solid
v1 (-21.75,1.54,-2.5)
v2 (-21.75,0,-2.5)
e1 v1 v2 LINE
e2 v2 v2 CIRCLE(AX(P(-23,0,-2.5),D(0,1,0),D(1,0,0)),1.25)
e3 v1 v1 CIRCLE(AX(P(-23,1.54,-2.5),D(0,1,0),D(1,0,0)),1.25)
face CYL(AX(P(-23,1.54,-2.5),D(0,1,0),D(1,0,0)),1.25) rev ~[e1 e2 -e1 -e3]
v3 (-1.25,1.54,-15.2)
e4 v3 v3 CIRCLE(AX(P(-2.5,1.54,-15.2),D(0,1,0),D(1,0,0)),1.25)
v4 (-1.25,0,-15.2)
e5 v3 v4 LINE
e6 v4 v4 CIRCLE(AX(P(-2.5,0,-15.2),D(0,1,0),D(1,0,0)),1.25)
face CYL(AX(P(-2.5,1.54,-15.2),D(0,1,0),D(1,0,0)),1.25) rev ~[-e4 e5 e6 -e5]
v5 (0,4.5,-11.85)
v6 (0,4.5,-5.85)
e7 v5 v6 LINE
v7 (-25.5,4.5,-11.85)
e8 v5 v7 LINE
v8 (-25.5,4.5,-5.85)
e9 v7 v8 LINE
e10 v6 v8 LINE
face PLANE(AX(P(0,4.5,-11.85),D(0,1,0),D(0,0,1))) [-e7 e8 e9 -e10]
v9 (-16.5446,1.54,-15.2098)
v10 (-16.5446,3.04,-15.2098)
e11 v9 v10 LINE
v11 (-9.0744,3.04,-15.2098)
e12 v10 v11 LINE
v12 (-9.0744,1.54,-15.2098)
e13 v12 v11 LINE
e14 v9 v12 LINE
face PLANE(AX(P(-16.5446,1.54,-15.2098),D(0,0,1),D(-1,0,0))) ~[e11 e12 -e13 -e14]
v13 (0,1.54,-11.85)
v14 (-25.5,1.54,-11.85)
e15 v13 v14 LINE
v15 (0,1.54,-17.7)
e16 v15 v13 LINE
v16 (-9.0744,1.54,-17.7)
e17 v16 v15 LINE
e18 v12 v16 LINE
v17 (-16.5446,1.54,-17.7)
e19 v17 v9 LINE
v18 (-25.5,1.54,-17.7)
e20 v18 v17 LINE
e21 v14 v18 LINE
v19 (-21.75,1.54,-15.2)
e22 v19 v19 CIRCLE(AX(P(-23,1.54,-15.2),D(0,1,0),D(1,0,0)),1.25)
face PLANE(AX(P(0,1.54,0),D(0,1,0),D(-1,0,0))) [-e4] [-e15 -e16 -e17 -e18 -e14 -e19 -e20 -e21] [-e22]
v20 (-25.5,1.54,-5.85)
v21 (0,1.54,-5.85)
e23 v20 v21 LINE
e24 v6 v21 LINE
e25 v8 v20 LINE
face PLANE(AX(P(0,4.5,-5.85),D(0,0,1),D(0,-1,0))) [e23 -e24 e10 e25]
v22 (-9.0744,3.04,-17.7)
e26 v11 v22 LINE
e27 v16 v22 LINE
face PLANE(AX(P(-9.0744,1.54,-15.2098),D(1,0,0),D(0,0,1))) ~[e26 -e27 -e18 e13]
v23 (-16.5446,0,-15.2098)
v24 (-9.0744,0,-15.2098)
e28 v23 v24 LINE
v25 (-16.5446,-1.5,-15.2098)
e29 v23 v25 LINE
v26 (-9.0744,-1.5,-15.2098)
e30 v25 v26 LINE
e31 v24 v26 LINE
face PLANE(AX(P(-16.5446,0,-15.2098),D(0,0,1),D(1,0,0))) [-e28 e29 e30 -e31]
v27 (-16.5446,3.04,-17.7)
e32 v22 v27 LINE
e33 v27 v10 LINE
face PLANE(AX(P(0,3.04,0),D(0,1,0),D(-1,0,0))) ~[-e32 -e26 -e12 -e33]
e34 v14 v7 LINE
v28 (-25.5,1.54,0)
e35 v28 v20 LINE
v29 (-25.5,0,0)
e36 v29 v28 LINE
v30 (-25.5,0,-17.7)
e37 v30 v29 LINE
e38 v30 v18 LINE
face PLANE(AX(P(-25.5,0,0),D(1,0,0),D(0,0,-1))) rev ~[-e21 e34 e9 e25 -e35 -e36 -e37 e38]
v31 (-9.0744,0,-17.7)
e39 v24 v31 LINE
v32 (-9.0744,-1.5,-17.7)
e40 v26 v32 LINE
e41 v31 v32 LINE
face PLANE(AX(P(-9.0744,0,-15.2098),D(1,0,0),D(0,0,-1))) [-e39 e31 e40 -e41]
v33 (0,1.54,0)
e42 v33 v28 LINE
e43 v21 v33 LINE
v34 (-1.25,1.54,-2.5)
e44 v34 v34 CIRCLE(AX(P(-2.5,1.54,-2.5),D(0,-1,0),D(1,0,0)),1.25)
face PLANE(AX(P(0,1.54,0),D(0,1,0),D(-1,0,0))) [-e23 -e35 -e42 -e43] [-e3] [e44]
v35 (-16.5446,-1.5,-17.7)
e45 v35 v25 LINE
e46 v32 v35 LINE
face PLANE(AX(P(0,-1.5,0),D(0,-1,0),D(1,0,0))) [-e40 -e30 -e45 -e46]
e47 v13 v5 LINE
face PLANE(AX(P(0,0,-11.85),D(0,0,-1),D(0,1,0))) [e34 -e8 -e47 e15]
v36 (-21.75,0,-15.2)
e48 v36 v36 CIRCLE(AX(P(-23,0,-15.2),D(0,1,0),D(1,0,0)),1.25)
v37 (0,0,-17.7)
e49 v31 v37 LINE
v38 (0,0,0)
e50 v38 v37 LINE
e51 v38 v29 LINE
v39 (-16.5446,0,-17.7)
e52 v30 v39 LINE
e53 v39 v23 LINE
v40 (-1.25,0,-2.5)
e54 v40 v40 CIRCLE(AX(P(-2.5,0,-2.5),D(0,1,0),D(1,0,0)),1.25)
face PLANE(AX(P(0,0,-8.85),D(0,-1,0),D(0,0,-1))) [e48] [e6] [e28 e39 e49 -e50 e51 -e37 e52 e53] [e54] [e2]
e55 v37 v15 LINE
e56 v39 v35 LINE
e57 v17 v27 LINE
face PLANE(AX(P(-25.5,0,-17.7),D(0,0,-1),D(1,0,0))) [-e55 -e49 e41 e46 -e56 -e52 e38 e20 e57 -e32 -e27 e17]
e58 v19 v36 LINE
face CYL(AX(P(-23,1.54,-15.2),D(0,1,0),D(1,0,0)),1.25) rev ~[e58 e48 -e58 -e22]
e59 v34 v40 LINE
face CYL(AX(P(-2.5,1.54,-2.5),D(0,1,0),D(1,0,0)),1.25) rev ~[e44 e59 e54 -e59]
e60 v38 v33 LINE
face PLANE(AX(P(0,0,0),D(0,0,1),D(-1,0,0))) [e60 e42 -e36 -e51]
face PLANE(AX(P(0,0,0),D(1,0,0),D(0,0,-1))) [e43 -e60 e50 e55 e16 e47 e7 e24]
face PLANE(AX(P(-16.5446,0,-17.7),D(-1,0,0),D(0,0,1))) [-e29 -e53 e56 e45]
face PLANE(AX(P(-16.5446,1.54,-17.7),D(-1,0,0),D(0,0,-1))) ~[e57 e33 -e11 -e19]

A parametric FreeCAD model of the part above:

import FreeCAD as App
import Part
import Sketcher
from FreeCAD import Vector
Q = App.Units.Quantity

doc = App.newDocument("Part")
params = doc.addObject("Spreadsheet::Sheet", "Params")
for row, (alias, value) in enumerate([
    ("sketch1_width", "25.5 mm"),
    ("sketch1_height", "17.7 mm"),
    ("pad1_length", "1.54 mm"),
    ("sketch2_diameter", "2.5 mm"),
    ("pocket1_length", "1.54 mm"),
    ("sketch3_height", "6 mm"),
    ("sketch3_width", "4.5 mm"),
    ("pad2_length", "25.5 mm"),
    ("pad3_length", "1.5 mm"),
], start=1):
    params.set(f"A{row}", alias)
    params.set(f"B{row}", "=" + value)
    params.setAlias(f"B{row}", alias)

body = doc.addObject("PartDesign::Body", "Body")

# Sketch on XZ plane
sketch1 = doc.addObject("Sketcher::SketchObject", "Sketch")
body.addObject(sketch1)
sketch1.AttachmentSupport = (doc.XZ_Plane, [""])
sketch1.MapMode = "FlatFace"
sketch1.addGeometry(Part.LineSegment(Vector(-25.5, 0, 0), Vector(0, 0, 0)), False)
sketch1.addGeometry(Part.LineSegment(Vector(0, 0, 0), Vector(0, -17.7, 0)), False)
sketch1.addGeometry(Part.LineSegment(Vector(0, -17.7, 0), Vector(-25.5, -17.7, 0)), False)
sketch1.addGeometry(Part.LineSegment(Vector(-25.5, -17.7, 0), Vector(-25.5, 0, 0)), False)
sketch1.addConstraint(Sketcher.Constraint("Coincident", 0, 2, 1, 1))
sketch1.addConstraint(Sketcher.Constraint("Coincident", 1, 2, 2, 1))
sketch1.addConstraint(Sketcher.Constraint("Coincident", 2, 2, 3, 1))
sketch1.addConstraint(Sketcher.Constraint("Coincident", 3, 2, 0, 1))
sketch1.addConstraint(Sketcher.Constraint("Horizontal", 0))
sketch1.addConstraint(Sketcher.Constraint("Vertical", 1))
sketch1.addConstraint(Sketcher.Constraint("Horizontal", 2))
sketch1.addConstraint(Sketcher.Constraint("Vertical", 3))
sketch1.addConstraint(Sketcher.Constraint("Coincident", 0, 2, -1, 1))
sketch1.addConstraint(Sketcher.Constraint("DistanceX", 0, 1, 0, 2, Q("25.5 mm")))
sketch1.addConstraint(Sketcher.Constraint("DistanceY", 1, 2, 1, 1, Q("17.7 mm")))
sketch1.setExpression("Constraints[9]", "Params.sketch1_width")
sketch1.setExpression("Constraints[10]", "Params.sketch1_height")
pad1 = doc.addObject("PartDesign::Pad", "Pad")
body.addObject(pad1)
pad1.Profile = sketch1
pad1.setExpression("Length", "Params.pad1_length")
pad1.Reversed = True

# Sketch on XZ plane
sketch2 = doc.addObject("Sketcher::SketchObject", "Sketch001")
body.addObject(sketch2)
sketch2.AttachmentSupport = (doc.XZ_Plane, [""])
sketch2.MapMode = "FlatFace"
sketch2.AttachmentOffset = App.Placement(Vector(0, 0, -1.54), App.Rotation())
sketch2.addGeometry(Part.Circle(Vector(-2.5, -2.5, 0), Vector(0, 0, 1), 1.25), False)
sketch2.addGeometry(Part.Circle(Vector(-23, -2.5, 0), Vector(0, 0, 1), 1.25), False)
sketch2.addGeometry(Part.Circle(Vector(-2.5, -15.2, 0), Vector(0, 0, 1), 1.25), False)
sketch2.addGeometry(Part.Circle(Vector(-23, -15.2, 0), Vector(0, 0, 1), 1.25), False)
sketch2.addConstraint(Sketcher.Constraint("Equal", 0, 1))
sketch2.addConstraint(Sketcher.Constraint("Equal", 1, 2))
sketch2.addConstraint(Sketcher.Constraint("Equal", 2, 3))
sketch2.addConstraint(Sketcher.Constraint("Horizontal", 0, 3, 1, 3))
sketch2.addConstraint(Sketcher.Constraint("Horizontal", 2, 3, 3, 3))
sketch2.addConstraint(Sketcher.Constraint("Vertical", 0, 3, 2, 3))
sketch2.addConstraint(Sketcher.Constraint("Vertical", 1, 3, 3, 3))
sketch2.addConstraint(Sketcher.Constraint("Diameter", 0, Q("2.5 mm")))
sketch2.addConstraint(Sketcher.Constraint("DistanceX", 0, 3, -1, 1, Q("2.5 mm")))
sketch2.addConstraint(Sketcher.Constraint("DistanceY", 0, 3, -1, 1, Q("2.5 mm")))
sketch2.addConstraint(Sketcher.Constraint("DistanceX", 1, 3, -1, 1, Q("23 mm")))
sketch2.addConstraint(Sketcher.Constraint("DistanceY", 2, 3, -1, 1, Q("15.2 mm")))
sketch2.setExpression("Constraints[7]", "Params.sketch2_diameter")
pocket1 = doc.addObject("PartDesign::Pocket", "Pocket")
body.addObject(pocket1)
pocket1.Profile = sketch2
pocket1.setExpression("Length", "Params.pocket1_length")
pocket1.Reversed = True

# Sketch on YZ plane
sketch3 = doc.addObject("Sketcher::SketchObject", "Sketch002")
body.addObject(sketch3)
sketch3.AttachmentSupport = (doc.YZ_Plane, [""])
sketch3.MapMode = "FlatFace"
sketch3.addGeometry(Part.LineSegment(Vector(4.5, -5.85, 0), Vector(0, -5.85, 0)), False)
sketch3.addGeometry(Part.LineSegment(Vector(0, -5.85, 0), Vector(0, -11.85, 0)), False)
sketch3.addGeometry(Part.LineSegment(Vector(0, -11.85, 0), Vector(4.5, -11.85, 0)), False)
sketch3.addGeometry(Part.LineSegment(Vector(4.5, -11.85, 0), Vector(4.5, -5.85, 0)), False)
sketch3.addConstraint(Sketcher.Constraint("Coincident", 0, 2, 1, 1))
sketch3.addConstraint(Sketcher.Constraint("Coincident", 1, 2, 2, 1))
sketch3.addConstraint(Sketcher.Constraint("Coincident", 2, 2, 3, 1))
sketch3.addConstraint(Sketcher.Constraint("Coincident", 3, 2, 0, 1))
sketch3.addConstraint(Sketcher.Constraint("Horizontal", 0))
sketch3.addConstraint(Sketcher.Constraint("Vertical", 1))
sketch3.addConstraint(Sketcher.Constraint("Horizontal", 2))
sketch3.addConstraint(Sketcher.Constraint("Vertical", 3))
sketch3.addConstraint(Sketcher.Constraint("PointOnObject", 0, 2, -2))
sketch3.addConstraint(Sketcher.Constraint("DistanceY", 1, 2, 1, 1, Q("6 mm")))
sketch3.addConstraint(Sketcher.Constraint("DistanceX", 0, 2, 0, 1, Q("4.5 mm")))
sketch3.addConstraint(Sketcher.Constraint("DistanceY", 0, 2, -1, 1, Q("5.85 mm")))
sketch3.setExpression("Constraints[9]", "Params.sketch3_height")
sketch3.setExpression("Constraints[10]", "Params.sketch3_width")
pad2 = doc.addObject("PartDesign::Pad", "Pad001")
body.addObject(pad2)
pad2.Profile = sketch3
pad2.setExpression("Length", "Params.pad2_length")
pad2.Reversed = True

# Sketch on XZ plane
sketch4 = doc.addObject("Sketcher::SketchObject", "Sketch003")
body.addObject(sketch4)
sketch4.AttachmentSupport = (doc.XZ_Plane, [""])
sketch4.MapMode = "FlatFace"
sketch4.addGeometry(Part.LineSegment(Vector(-16.5446, -17.7, 0), Vector(-9.0744, -17.7, 0)), False)
sketch4.addGeometry(Part.LineSegment(Vector(-9.0744, -17.7, 0), Vector(-9.0744, -15.2098, 0)), False)
sketch4.addGeometry(Part.LineSegment(Vector(-9.0744, -15.2098, 0), Vector(-16.5446, -15.2098, 0)), False)
sketch4.addGeometry(Part.LineSegment(Vector(-16.5446, -15.2098, 0), Vector(-16.5446, -17.7, 0)), False)
sketch4.addConstraint(Sketcher.Constraint("Coincident", 0, 2, 1, 1))
sketch4.addConstraint(Sketcher.Constraint("Coincident", 1, 2, 2, 1))
sketch4.addConstraint(Sketcher.Constraint("Coincident", 2, 2, 3, 1))
sketch4.addConstraint(Sketcher.Constraint("Coincident", 3, 2, 0, 1))
sketch4.addConstraint(Sketcher.Constraint("Horizontal", 0))
sketch4.addConstraint(Sketcher.Constraint("Vertical", 1))
sketch4.addConstraint(Sketcher.Constraint("Horizontal", 2))
sketch4.addConstraint(Sketcher.Constraint("Vertical", 3))
sketch4.addConstraint(Sketcher.Constraint("DistanceY", 0, 2, -1, 1, Q("17.7 mm")))
sketch4.addConstraint(Sketcher.Constraint("DistanceX", 0, 1, 0, 2, Q("7.4702 mm")))
sketch4.addConstraint(Sketcher.Constraint("DistanceY", 1, 1, 1, 2, Q("2.4902 mm")))
sketch4.addConstraint(Sketcher.Constraint("DistanceX", 0, 2, -1, 1, Q("9.0744 mm")))
pad3 = doc.addObject("PartDesign::Pad", "Pad002")
body.addObject(pad3)
pad3.Profile = sketch4
pad3.setExpression("Length", "Params.pad3_length")
doc.recompute()

datumplane = doc.addObject("PartDesign::Plane", "DatumPlane")
body.addObject(datumplane)
datumplane.AttachmentSupport = (doc.XZ_Plane, [""])
datumplane.MapMode = "FlatFace"
datumplane.AttachmentOffset = App.Placement(Vector(0, 0, -0.77), App.Rotation())
mirrored = doc.addObject("PartDesign::Mirrored", "Mirrored")
body.addObject(mirrored)
mirrored.Originals = [pad3]
mirrored.MirrorPlane = (datumplane, [""])
body.Tip = mirrored

doc.recompute()
